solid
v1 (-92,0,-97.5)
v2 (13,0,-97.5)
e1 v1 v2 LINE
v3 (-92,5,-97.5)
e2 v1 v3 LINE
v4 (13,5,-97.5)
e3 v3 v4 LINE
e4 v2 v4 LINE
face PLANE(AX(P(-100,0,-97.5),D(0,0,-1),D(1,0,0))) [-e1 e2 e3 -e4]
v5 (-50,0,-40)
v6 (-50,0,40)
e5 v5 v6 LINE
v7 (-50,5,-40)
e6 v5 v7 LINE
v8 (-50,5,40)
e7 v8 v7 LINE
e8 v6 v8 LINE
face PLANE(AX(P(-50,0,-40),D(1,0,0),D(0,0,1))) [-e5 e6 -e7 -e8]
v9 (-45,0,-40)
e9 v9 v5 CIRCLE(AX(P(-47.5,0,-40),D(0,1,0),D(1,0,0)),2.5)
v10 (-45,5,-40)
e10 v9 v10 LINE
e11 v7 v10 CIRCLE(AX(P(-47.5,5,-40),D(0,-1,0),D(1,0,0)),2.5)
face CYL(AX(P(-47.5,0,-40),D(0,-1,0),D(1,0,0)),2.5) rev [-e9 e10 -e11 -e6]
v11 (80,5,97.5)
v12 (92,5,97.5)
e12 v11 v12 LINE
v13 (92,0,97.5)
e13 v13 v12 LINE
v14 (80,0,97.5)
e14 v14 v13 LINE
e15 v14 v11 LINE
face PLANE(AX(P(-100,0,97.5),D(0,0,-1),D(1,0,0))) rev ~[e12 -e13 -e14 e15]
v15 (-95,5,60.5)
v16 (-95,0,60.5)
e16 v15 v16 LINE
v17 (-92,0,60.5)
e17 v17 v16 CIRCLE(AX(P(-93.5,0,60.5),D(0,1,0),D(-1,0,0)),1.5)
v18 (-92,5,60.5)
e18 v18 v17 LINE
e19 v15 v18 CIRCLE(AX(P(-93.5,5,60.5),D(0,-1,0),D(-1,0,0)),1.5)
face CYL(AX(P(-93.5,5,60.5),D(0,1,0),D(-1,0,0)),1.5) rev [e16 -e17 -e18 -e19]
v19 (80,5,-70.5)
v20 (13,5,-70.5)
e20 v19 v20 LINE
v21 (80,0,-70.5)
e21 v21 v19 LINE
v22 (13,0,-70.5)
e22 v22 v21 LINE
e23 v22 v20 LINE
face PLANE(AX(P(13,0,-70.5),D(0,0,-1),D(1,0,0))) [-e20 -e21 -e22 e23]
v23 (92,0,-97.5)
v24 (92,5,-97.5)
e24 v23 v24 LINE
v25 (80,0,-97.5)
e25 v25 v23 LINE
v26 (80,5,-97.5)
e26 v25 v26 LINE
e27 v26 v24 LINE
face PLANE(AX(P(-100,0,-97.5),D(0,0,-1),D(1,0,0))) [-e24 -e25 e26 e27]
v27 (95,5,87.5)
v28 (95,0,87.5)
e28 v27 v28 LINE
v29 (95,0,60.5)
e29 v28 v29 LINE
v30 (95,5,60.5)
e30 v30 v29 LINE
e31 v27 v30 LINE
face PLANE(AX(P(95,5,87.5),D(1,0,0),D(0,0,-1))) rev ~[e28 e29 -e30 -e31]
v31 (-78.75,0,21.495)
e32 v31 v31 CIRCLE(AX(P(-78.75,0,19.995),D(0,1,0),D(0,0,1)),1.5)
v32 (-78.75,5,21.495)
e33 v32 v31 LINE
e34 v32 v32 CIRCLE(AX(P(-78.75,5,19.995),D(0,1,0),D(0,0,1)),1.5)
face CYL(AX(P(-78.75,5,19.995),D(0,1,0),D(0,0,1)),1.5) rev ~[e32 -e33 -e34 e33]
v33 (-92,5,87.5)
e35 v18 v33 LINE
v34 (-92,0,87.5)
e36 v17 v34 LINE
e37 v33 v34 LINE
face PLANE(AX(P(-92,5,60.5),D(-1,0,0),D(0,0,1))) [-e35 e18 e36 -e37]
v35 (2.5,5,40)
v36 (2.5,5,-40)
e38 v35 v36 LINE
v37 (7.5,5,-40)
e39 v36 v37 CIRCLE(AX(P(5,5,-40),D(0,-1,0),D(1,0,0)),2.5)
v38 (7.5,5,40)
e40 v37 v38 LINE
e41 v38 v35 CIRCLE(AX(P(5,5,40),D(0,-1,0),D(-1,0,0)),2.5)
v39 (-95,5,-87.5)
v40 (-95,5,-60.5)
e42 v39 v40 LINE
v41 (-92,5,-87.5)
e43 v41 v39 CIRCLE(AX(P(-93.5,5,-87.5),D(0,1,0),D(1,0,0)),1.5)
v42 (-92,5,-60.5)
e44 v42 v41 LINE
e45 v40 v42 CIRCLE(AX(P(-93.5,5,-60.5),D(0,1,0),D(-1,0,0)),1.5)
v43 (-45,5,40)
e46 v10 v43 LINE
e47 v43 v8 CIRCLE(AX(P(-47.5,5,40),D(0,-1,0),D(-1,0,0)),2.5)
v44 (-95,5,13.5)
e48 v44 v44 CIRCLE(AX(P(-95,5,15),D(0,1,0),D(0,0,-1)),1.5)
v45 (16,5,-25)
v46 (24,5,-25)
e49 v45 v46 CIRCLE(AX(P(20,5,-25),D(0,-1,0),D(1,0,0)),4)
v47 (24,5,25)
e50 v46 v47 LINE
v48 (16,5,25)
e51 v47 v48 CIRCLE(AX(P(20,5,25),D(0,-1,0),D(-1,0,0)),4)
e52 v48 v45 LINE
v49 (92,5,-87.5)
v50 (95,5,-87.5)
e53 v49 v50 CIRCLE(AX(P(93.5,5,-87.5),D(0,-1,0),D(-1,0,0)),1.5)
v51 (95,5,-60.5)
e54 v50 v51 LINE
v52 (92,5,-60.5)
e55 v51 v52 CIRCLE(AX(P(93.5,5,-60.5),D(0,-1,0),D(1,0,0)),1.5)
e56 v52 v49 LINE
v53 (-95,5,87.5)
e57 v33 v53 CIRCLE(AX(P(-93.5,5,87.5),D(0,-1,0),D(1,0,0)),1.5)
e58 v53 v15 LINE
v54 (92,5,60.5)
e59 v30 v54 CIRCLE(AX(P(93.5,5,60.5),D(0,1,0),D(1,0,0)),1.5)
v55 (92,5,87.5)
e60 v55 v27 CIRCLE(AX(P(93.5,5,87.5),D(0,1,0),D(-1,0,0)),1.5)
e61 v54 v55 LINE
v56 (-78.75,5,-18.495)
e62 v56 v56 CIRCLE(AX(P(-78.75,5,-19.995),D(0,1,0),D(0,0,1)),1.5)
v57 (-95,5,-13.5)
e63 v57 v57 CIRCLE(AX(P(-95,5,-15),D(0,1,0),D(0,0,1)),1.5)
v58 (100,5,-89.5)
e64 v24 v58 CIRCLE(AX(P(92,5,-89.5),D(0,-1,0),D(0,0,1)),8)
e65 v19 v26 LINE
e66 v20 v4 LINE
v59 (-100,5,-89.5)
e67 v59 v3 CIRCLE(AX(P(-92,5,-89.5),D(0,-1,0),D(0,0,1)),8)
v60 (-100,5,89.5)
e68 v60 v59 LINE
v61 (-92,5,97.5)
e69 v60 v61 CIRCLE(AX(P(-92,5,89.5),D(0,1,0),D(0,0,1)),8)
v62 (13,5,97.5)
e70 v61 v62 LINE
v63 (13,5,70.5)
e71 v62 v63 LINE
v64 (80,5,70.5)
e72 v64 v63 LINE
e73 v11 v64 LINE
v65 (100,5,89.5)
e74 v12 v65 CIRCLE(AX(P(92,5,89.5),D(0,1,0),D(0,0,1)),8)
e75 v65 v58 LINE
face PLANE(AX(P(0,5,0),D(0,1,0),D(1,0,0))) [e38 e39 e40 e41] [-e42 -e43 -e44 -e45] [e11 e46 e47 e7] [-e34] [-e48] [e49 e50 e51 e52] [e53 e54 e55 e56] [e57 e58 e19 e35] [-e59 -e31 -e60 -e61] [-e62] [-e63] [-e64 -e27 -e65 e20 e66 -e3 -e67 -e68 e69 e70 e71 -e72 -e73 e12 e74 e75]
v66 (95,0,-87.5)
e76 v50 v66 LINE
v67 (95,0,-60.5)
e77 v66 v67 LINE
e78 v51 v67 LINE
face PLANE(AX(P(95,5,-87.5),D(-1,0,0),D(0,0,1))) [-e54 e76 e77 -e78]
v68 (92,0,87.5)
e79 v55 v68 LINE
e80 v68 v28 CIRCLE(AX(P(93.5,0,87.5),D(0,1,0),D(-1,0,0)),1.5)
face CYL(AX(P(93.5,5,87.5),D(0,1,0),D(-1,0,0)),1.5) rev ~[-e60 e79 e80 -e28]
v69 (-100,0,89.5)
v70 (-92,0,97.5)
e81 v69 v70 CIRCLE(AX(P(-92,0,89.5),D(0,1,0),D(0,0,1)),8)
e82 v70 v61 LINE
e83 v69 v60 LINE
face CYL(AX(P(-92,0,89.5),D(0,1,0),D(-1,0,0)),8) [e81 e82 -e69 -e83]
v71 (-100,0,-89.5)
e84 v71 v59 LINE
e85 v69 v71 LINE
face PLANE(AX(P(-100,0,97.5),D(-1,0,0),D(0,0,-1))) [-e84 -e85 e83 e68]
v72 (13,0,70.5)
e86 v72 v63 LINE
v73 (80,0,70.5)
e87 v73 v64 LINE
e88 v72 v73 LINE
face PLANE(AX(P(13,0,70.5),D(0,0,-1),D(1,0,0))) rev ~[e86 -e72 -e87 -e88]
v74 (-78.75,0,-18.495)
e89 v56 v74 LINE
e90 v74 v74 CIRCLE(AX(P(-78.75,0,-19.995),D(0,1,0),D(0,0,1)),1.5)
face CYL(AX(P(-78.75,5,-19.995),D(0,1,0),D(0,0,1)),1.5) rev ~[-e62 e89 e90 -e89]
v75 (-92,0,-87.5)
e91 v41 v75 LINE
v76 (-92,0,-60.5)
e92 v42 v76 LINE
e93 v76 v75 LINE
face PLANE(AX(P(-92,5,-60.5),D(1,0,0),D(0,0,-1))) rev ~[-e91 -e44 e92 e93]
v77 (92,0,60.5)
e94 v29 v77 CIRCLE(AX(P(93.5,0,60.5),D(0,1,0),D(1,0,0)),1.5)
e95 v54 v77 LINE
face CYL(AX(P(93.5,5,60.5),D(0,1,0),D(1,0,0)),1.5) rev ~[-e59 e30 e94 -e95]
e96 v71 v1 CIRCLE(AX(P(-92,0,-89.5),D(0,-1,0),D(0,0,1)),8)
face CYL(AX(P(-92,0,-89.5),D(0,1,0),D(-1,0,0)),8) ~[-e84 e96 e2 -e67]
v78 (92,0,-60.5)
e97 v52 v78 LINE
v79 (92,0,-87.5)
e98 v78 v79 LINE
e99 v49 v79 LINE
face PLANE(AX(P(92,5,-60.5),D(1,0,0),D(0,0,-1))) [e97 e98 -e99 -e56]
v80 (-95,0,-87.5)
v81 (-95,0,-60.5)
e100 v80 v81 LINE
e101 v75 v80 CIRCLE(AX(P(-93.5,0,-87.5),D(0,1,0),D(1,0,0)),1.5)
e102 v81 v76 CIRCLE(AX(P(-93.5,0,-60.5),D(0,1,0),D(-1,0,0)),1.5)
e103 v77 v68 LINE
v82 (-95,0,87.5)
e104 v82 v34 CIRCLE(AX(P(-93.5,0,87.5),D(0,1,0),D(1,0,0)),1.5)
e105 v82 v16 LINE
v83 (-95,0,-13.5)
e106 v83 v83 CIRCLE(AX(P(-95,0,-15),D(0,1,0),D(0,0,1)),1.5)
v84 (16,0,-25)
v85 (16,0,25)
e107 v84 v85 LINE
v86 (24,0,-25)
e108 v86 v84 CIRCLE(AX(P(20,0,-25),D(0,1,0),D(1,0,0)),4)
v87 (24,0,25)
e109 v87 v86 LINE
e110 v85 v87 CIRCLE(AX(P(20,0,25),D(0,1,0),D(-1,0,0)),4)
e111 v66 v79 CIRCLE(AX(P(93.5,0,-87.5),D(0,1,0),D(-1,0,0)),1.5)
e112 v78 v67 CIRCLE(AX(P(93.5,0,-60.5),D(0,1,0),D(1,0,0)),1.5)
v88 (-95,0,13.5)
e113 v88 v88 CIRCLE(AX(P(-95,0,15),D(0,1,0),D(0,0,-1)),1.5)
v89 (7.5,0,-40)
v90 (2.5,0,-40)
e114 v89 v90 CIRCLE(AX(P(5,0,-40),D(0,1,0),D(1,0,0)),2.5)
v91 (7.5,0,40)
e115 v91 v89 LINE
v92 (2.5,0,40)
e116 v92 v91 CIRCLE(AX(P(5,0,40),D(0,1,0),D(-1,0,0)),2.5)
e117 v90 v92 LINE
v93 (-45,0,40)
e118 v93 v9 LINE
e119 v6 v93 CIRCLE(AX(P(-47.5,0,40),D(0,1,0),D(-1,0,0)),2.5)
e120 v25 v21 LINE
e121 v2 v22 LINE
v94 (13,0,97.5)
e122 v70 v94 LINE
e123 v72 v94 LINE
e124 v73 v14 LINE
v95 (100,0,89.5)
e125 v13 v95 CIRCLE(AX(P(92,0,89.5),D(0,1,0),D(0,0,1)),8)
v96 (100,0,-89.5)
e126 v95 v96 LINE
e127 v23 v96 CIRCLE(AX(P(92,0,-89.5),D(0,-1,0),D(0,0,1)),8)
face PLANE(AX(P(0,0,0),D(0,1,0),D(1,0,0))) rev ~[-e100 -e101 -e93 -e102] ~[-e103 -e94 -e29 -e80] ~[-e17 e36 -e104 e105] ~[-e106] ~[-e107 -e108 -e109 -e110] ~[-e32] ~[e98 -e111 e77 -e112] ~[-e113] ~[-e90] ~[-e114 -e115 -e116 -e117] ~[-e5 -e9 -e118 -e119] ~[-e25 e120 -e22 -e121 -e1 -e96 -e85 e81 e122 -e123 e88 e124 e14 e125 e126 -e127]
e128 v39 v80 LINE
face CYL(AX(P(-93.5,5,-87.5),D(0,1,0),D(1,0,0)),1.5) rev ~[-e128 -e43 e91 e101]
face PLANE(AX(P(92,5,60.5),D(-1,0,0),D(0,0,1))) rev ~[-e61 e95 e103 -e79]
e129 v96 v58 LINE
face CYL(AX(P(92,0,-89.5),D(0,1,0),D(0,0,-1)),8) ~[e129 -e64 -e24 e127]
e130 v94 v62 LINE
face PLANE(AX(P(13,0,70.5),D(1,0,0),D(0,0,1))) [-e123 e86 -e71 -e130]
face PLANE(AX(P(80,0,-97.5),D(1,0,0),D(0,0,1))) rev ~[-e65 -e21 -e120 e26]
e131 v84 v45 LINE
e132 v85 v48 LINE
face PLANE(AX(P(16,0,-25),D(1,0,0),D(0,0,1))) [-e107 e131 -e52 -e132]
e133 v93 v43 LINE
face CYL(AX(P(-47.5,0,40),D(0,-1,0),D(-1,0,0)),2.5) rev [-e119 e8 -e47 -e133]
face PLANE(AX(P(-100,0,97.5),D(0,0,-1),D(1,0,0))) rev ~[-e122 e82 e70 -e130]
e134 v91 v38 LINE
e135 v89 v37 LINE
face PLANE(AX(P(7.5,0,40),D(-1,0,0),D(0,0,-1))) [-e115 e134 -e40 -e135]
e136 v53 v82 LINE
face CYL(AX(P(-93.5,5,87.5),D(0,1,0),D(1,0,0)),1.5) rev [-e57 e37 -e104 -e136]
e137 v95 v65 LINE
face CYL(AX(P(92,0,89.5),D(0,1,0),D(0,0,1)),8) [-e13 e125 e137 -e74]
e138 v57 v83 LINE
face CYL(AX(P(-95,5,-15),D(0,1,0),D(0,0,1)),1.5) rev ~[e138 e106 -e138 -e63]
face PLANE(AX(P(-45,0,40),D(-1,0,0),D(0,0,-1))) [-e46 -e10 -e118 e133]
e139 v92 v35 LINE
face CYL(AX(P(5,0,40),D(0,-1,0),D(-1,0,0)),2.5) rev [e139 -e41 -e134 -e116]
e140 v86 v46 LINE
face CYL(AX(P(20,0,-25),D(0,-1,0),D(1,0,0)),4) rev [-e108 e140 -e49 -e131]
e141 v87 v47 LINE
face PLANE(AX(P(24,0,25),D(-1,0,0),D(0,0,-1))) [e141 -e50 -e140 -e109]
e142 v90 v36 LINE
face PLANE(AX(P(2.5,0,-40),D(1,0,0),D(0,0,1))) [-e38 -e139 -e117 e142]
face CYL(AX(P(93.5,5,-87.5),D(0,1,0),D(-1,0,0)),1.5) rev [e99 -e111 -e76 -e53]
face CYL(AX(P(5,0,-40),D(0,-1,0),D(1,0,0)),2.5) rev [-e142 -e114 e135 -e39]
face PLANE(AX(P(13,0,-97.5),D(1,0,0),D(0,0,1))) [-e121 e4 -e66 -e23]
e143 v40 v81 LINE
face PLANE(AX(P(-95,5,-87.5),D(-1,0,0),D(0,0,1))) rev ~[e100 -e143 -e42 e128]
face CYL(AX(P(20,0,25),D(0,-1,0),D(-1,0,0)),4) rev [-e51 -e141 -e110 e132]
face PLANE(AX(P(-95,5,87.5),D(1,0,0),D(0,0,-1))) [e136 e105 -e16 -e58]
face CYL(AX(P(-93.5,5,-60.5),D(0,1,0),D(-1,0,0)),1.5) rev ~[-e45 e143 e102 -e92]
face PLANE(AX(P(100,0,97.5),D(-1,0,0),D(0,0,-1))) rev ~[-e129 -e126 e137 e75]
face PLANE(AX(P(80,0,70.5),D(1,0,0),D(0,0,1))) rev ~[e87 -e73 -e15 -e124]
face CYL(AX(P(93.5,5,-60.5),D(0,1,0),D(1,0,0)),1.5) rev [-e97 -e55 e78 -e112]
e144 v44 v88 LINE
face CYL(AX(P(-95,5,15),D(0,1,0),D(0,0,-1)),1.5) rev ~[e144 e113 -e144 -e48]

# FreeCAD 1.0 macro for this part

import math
import FreeCAD as App
import Part
import Sketcher


def edges_at(feature, points):
    """Names of the edges that pass closest to the given points."""
    edges = feature.Shape.Edges
    near = lambda p: min(range(len(edges)), key=lambda i: edges[i].distToShape(Part.Vertex(*p))[0])
    return sorted({f"Edge{near(p) + 1}" for p in points})

doc = App.newDocument("Part")
body = doc.addObject("PartDesign::Body", "Body")

sketch1 = body.newObject("Sketcher::SketchObject", "Sketch")
sketch1.AttachmentSupport = (doc.getObject("XZ_Plane"), [""])
sketch1.MapMode = "FlatFace"
sketch1.addGeometry([
    Part.LineSegment(App.Vector(-100, -98, 0), App.Vector(-100, 98, 0)),
    Part.LineSegment(App.Vector(-100, 98, 0), App.Vector(100, 98, 0)),
    Part.LineSegment(App.Vector(100, 98, 0), App.Vector(100, -98, 0)),
    Part.LineSegment(App.Vector(100, -98, 0), App.Vector(-100, -98, 0)),
], False)
sketch1.addConstraint([
    Sketcher.Constraint("Coincident", 0, 2, 1, 1),
    Sketcher.Constraint("Coincident", 1, 2, 2, 1),
    Sketcher.Constraint("Coincident", 2, 2, 3, 1),
    Sketcher.Constraint("Coincident", 3, 2, 0, 1),
    Sketcher.Constraint("Vertical", 0),
    Sketcher.Constraint("Horizontal", 1),
    Sketcher.Constraint("Vertical", 2),
    Sketcher.Constraint("Horizontal", 3),
    Sketcher.Constraint("Symmetric", 0, 2, 2, 2, -1, 1),
    Sketcher.Constraint("DistanceX", 1, 1, 1, 2, 200.0),
    Sketcher.Constraint("DistanceY", 0, 1, 0, 2, 195.0),
])
pad1 = body.newObject("PartDesign::Pad", "Pad")
pad1.Profile = sketch1
pad1.Length = 5
pad1.Reversed = True

sketch2 = body.newObject("Sketcher::SketchObject", "Sketch001")
sketch2.AttachmentSupport = (doc.getObject("XZ_Plane"), [""])
sketch2.MapMode = "FlatFace"
sketch2.AttachmentOffset = App.Placement(App.Vector(0, 0, -5), App.Rotation())
sketch2.addGeometry([
    Part.LineSegment(App.Vector(-95, 60.5, 0), App.Vector(-95, 87.5, 0)),
    Part.ArcOfCircle(Part.Circle(App.Vector(-93.5, 87.5, 0), App.Vector(0, 0, 1), 1.5), math.radians(0), math.radians(180)),
    Part.LineSegment(App.Vector(-92, 87.5, 0), App.Vector(-92, 60.5, 0)),
    Part.ArcOfCircle(Part.Circle(App.Vector(-93.5, 60.5, 0), App.Vector(0, 0, 1), 1.5), math.radians(180), math.radians(360)),
    Part.LineSegment(App.Vector(-95, -87.5, 0), App.Vector(-95, -60.5, 0)),
    Part.ArcOfCircle(Part.Circle(App.Vector(-93.5, -60.5, 0), App.Vector(0, 0, 1), 1.5), math.radians(0), math.radians(180)),
    Part.LineSegment(App.Vector(-92, -60.5, 0), App.Vector(-92, -87.5, 0)),
    Part.ArcOfCircle(Part.Circle(App.Vector(-93.5, -87.5, 0), App.Vector(0, 0, 1), 1.5), math.radians(180), math.radians(360)),
    Part.LineSegment(App.Vector(95, -60.5, 0), App.Vector(95, -87.5, 0)),
    Part.ArcOfCircle(Part.Circle(App.Vector(93.5, -87.5, 0), App.Vector(0, 0, 1), 1.5), math.radians(180), math.radians(360)),
    Part.LineSegment(App.Vector(92, -87.5, 0), App.Vector(92, -60.5, 0)),
    Part.ArcOfCircle(Part.Circle(App.Vector(93.5, -60.5, 0), App.Vector(0, 0, 1), 1.5), math.radians(0), math.radians(180)),
    Part.LineSegment(App.Vector(95, 87.5, 0), App.Vector(95, 60.5, 0)),
    Part.ArcOfCircle(Part.Circle(App.Vector(93.5, 60.5, 0), App.Vector(0, 0, 1), 1.5), math.radians(180), math.radians(360)),
    Part.LineSegment(App.Vector(92, 60.5, 0), App.Vector(92, 87.5, 0)),
    Part.ArcOfCircle(Part.Circle(App.Vector(93.5, 87.5, 0), App.Vector(0, 0, 1), 1.5), math.radians(0), math.radians(180)),
], False)
sketch2.addConstraint([
    Sketcher.Constraint("Tangent", 0, 2, 1, 2),
    Sketcher.Constraint("Tangent", 1, 1, 2, 1),
    Sketcher.Constraint("Tangent", 2, 2, 3, 2),
    Sketcher.Constraint("Tangent", 3, 1, 0, 1),
    Sketcher.Constraint("Tangent", 4, 2, 5, 2),
    Sketcher.Constraint("Tangent", 5, 1, 6, 1),
    Sketcher.Constraint("Tangent", 6, 2, 7, 2),
    Sketcher.Constraint("Tangent", 7, 1, 4, 1),
    Sketcher.Constraint("Tangent", 8, 2, 9, 2),
    Sketcher.Constraint("Tangent", 9, 1, 10, 1),
    Sketcher.Constraint("Tangent", 10, 2, 11, 2),
    Sketcher.Constraint("Tangent", 11, 1, 8, 1),
    Sketcher.Constraint("Tangent", 12, 2, 13, 2),
    Sketcher.Constraint("Tangent", 13, 1, 14, 1),
    Sketcher.Constraint("Tangent", 14, 2, 15, 2),
    Sketcher.Constraint("Tangent", 15, 1, 12, 1),
    Sketcher.Constraint("Vertical", 0),
    Sketcher.Constraint("Vertical", 2),
    Sketcher.Constraint("Vertical", 4),
    Sketcher.Constraint("Vertical", 6),
    Sketcher.Constraint("Vertical", 8),
    Sketcher.Constraint("Vertical", 10),
    Sketcher.Constraint("Vertical", 12),
    Sketcher.Constraint("Vertical", 14),
    Sketcher.Constraint("Equal", 3, 5),
    Sketcher.Constraint("Equal", 7, 9),
    Sketcher.Constraint("Equal", 11, 13),
    Sketcher.Constraint("Symmetric", 1, 3, 9, 3, -1, 1),
    Sketcher.Constraint("Symmetric", 5, 3, 13, 3, -1, 1),
    Sketcher.Constraint("Symmetric", 7, 3, 9, 3, -2),
    Sketcher.Constraint("Horizontal", 5, 3, 11, 3),
    Sketcher.Constraint("Horizontal", 3, 3, 13, 3),
    Sketcher.Constraint("Horizontal", 1, 3, 15, 3),
    Sketcher.Constraint("Radius", 1, 1.5),
    Sketcher.Constraint("DistanceY", 0, 1, 0, 2, 27.0),
    Sketcher.Constraint("DistanceX", 0, 2, -1, 1, 95.0),
    Sketcher.Constraint("DistanceY", 5, 3, 3, 3, 121.0),
])
pocket1 = body.newObject("PartDesign::Pocket", "Pocket")
pocket1.Profile = sketch2
pocket1.Type = "ThroughAll"
pocket1.Reversed = True

sketch3 = body.newObject("Sketcher::SketchObject", "Sketch002")
sketch3.AttachmentSupport = (doc.getObject("XZ_Plane"), [""])
sketch3.MapMode = "FlatFace"
sketch3.addGeometry([
    Part.LineSegment(App.Vector(13, -70.5, 0), App.Vector(13, -97.5, 0)),
    Part.LineSegment(App.Vector(13, -97.5, 0), App.Vector(80, -97.5, 0)),
    Part.LineSegment(App.Vector(80, -97.5, 0), App.Vector(80, -70.5, 0)),
    Part.LineSegment(App.Vector(80, -70.5, 0), App.Vector(13, -70.5, 0)),
    Part.LineSegment(App.Vector(13, 97.5, 0), App.Vector(13, 70.5, 0)),
    Part.LineSegment(App.Vector(13, 70.5, 0), App.Vector(80, 70.5, 0)),
    Part.LineSegment(App.Vector(80, 70.5, 0), App.Vector(80, 97.5, 0)),
    Part.LineSegment(App.Vector(80, 97.5, 0), App.Vector(13, 97.5, 0)),
    Part.LineSegment(App.Vector(-45, -40, 0), App.Vector(-45, 40, 0)),
    Part.ArcOfCircle(Part.Circle(App.Vector(-47.5, 40, 0), App.Vector(0, 0, 1), 2.5), math.radians(0), math.radians(180)),
    Part.LineSegment(App.Vector(-50, 40, 0), App.Vector(-50, -40, 0)),
    Part.ArcOfCircle(Part.Circle(App.Vector(-47.5, -40, 0), App.Vector(0, 0, 1), 2.5), math.radians(180), math.radians(360)),
    Part.LineSegment(App.Vector(24, -25, 0), App.Vector(24, 25, 0)),
    Part.ArcOfCircle(Part.Circle(App.Vector(20, 25, 0), App.Vector(0, 0, 1), 4), math.radians(0), math.radians(180)),
    Part.LineSegment(App.Vector(16, 25, 0), App.Vector(16, -25, 0)),
    Part.ArcOfCircle(Part.Circle(App.Vector(20, -25, 0), App.Vector(0, 0, 1), 4), math.radians(180), math.radians(360)),
    Part.LineSegment(App.Vector(7.5, -40, 0), App.Vector(7.5, 40, 0)),
    Part.ArcOfCircle(Part.Circle(App.Vector(5, 40, 0), App.Vector(0, 0, 1), 2.5), math.radians(0), math.radians(180)),
    Part.LineSegment(App.Vector(2.5, 40, 0), App.Vector(2.5, -40, 0)),
    Part.ArcOfCircle(Part.Circle(App.Vector(5, -40, 0), App.Vector(0, 0, 1), 2.5), math.radians(180), math.radians(360)),
], False)
sketch3.addConstraint([
    Sketcher.Constraint("Coincident", 0, 2, 1, 1),
    Sketcher.Constraint("Coincident", 1, 2, 2, 1),
    Sketcher.Constraint("Coincident", 2, 2, 3, 1),
    Sketcher.Constraint("Coincident", 3, 2, 0, 1),
    Sketcher.Constraint("Coincident", 4, 2, 5, 1),
    Sketcher.Constraint("Coincident", 5, 2, 6, 1),
    Sketcher.Constraint("Coincident", 6, 2, 7, 1),
    Sketcher.Constraint("Coincident", 7, 2, 4, 1),
    Sketcher.Constraint("Tangent", 8, 2, 9, 1),
    Sketcher.Constraint("Tangent", 9, 2, 10, 1),
    Sketcher.Constraint("Tangent", 10, 2, 11, 1),
    Sketcher.Constraint("Tangent", 11, 2, 8, 1),
    Sketcher.Constraint("Tangent", 12, 2, 13, 1),
    Sketcher.Constraint("Tangent", 13, 2, 14, 1),
    Sketcher.Constraint("Tangent", 14, 2, 15, 1),
    Sketcher.Constraint("Tangent", 15, 2, 12, 1),
    Sketcher.Constraint("Tangent", 16, 2, 17, 1),
    Sketcher.Constraint("Tangent", 17, 2, 18, 1),
    Sketcher.Constraint("Tangent", 18, 2, 19, 1),
    Sketcher.Constraint("Tangent", 19, 2, 16, 1),
    Sketcher.Constraint("Vertical", 0),
    Sketcher.Constraint("Horizontal", 1),
    Sketcher.Constraint("Vertical", 2),
    Sketcher.Constraint("Horizontal", 3),
    Sketcher.Constraint("Vertical", 4),
    Sketcher.Constraint("Horizontal", 5),
    Sketcher.Constraint("Vertical", 6),
    Sketcher.Constraint("Horizontal", 7),
    Sketcher.Constraint("Vertical", 8),
    Sketcher.Constraint("Vertical", 10),
    Sketcher.Constraint("Vertical", 12),
    Sketcher.Constraint("Vertical", 14),
    Sketcher.Constraint("Vertical", 16),
    Sketcher.Constraint("Vertical", 18),
    Sketcher.Constraint("Equal", 11, 17),
    Sketcher.Constraint("Symmetric", 3, 2, 4, 2, -1),
    Sketcher.Constraint("Symmetric", 1, 2, 6, 2, -1),
    Sketcher.Constraint("Horizontal", 9, 3, 17, 3),
    Sketcher.Constraint("Horizontal", 11, 3, 19, 3),
    Sketcher.Constraint("Radius", 13, 4.0),
    Sketcher.Constraint("Radius", 9, 2.5),
    Sketcher.Constraint("DistanceX", 1, 1, 1, 2, 67.0),
    Sketcher.Constraint("DistanceY", 0, 2, 0, 1, 27.0),
    Sketcher.Constraint("DistanceY", 8, 1, 8, 2, 80.0),
    Sketcher.Constraint("DistanceY", 12, 1, 12, 2, 50.0),
    Sketcher.Constraint("DistanceY", -1, 1, 9, 3, 40.0),
    Sketcher.Constraint("DistanceX", -1, 1, 13, 3, 20.0),
    Sketcher.Constraint("DistanceY", -1, 1, 13, 3, 25.0),
    Sketcher.Constraint("DistanceX", -1, 1, 17, 3, 5.0),
    Sketcher.Constraint("DistanceX", -1, 1, 0, 2, 13.0),
    Sketcher.Constraint("DistanceX", 8, 2, -1, 1, 45.0),
    Sketcher.Constraint("DistanceY", 0, 2, -1, 1, 97.5),
])
pocket2 = body.newObject("PartDesign::Pocket", "Pocket001")
pocket2.Profile = sketch3
pocket2.Type = "ThroughAll"

sketch4 = body.newObject("Sketcher::SketchObject", "Sketch003")
sketch4.AttachmentSupport = (doc.getObject("XZ_Plane"), [""])
sketch4.MapMode = "FlatFace"
sketch4.AttachmentOffset = App.Placement(App.Vector(0, 0, -5), App.Rotation())
sketch4.addGeometry([
    Part.Circle(App.Vector(-78.8, -20, 0), App.Vector(0, 0, 1), 1.5),
    Part.Circle(App.Vector(-78.8, 20, 0), App.Vector(0, 0, 1), 1.5),
], False)
sketch4.addConstraint([
    Sketcher.Constraint("Equal", 0, 1),
    Sketcher.Constraint("Symmetric", 0, 3, 1, 3, -1),
    Sketcher.Constraint("Diameter", 0, 3.0),
    Sketcher.Constraint("DistanceX", 0, 3, -1, 1, 78.75),
    Sketcher.Constraint("DistanceY", 0, 3, 1, 3, 39.99),
])
pocket3 = body.newObject("PartDesign::Pocket", "Pocket002")
pocket3.Profile = sketch4
pocket3.Type = "ThroughAll"
pocket3.Reversed = True

sketch5 = body.newObject("Sketcher::SketchObject", "Sketch004")
sketch5.AttachmentSupport = (doc.getObject("XZ_Plane"), [""])
sketch5.MapMode = "FlatFace"
sketch5.AttachmentOffset = App.Placement(App.Vector(0, 0, -5), App.Rotation())
sketch5.addGeometry([
    Part.Circle(App.Vector(-95, -15, 0), App.Vector(0, 0, 1), 1.5),
    Part.Circle(App.Vector(-95, 15, 0), App.Vector(0, 0, 1), 1.5),
], False)
sketch5.addConstraint([
    Sketcher.Constraint("Equal", 0, 1),
    Sketcher.Constraint("Symmetric", 0, 3, 1, 3, -1),
    Sketcher.Constraint("Diameter", 0, 3.0),
    Sketcher.Constraint("DistanceX", 0, 3, -1, 1, 95.0),
    Sketcher.Constraint("DistanceY", 0, 3, -1, 1, 15.0),
])
pocket4 = body.newObject("PartDesign::Pocket", "Pocket003")
pocket4.Profile = sketch5
pocket4.Type = "ThroughAll"
pocket4.Reversed = True
doc.recompute()

fillet = body.newObject("PartDesign::Fillet", "Fillet")
fillet.Base = (pocket4, edges_at(pocket4, [
    (100, 2.5, 97.5),
    (-100, 2.5, 97.5),
    (-100, 2.5, -97.5),
    (100, 2.5, -97.5),
]))
fillet.Radius = 8

doc.recompute()
